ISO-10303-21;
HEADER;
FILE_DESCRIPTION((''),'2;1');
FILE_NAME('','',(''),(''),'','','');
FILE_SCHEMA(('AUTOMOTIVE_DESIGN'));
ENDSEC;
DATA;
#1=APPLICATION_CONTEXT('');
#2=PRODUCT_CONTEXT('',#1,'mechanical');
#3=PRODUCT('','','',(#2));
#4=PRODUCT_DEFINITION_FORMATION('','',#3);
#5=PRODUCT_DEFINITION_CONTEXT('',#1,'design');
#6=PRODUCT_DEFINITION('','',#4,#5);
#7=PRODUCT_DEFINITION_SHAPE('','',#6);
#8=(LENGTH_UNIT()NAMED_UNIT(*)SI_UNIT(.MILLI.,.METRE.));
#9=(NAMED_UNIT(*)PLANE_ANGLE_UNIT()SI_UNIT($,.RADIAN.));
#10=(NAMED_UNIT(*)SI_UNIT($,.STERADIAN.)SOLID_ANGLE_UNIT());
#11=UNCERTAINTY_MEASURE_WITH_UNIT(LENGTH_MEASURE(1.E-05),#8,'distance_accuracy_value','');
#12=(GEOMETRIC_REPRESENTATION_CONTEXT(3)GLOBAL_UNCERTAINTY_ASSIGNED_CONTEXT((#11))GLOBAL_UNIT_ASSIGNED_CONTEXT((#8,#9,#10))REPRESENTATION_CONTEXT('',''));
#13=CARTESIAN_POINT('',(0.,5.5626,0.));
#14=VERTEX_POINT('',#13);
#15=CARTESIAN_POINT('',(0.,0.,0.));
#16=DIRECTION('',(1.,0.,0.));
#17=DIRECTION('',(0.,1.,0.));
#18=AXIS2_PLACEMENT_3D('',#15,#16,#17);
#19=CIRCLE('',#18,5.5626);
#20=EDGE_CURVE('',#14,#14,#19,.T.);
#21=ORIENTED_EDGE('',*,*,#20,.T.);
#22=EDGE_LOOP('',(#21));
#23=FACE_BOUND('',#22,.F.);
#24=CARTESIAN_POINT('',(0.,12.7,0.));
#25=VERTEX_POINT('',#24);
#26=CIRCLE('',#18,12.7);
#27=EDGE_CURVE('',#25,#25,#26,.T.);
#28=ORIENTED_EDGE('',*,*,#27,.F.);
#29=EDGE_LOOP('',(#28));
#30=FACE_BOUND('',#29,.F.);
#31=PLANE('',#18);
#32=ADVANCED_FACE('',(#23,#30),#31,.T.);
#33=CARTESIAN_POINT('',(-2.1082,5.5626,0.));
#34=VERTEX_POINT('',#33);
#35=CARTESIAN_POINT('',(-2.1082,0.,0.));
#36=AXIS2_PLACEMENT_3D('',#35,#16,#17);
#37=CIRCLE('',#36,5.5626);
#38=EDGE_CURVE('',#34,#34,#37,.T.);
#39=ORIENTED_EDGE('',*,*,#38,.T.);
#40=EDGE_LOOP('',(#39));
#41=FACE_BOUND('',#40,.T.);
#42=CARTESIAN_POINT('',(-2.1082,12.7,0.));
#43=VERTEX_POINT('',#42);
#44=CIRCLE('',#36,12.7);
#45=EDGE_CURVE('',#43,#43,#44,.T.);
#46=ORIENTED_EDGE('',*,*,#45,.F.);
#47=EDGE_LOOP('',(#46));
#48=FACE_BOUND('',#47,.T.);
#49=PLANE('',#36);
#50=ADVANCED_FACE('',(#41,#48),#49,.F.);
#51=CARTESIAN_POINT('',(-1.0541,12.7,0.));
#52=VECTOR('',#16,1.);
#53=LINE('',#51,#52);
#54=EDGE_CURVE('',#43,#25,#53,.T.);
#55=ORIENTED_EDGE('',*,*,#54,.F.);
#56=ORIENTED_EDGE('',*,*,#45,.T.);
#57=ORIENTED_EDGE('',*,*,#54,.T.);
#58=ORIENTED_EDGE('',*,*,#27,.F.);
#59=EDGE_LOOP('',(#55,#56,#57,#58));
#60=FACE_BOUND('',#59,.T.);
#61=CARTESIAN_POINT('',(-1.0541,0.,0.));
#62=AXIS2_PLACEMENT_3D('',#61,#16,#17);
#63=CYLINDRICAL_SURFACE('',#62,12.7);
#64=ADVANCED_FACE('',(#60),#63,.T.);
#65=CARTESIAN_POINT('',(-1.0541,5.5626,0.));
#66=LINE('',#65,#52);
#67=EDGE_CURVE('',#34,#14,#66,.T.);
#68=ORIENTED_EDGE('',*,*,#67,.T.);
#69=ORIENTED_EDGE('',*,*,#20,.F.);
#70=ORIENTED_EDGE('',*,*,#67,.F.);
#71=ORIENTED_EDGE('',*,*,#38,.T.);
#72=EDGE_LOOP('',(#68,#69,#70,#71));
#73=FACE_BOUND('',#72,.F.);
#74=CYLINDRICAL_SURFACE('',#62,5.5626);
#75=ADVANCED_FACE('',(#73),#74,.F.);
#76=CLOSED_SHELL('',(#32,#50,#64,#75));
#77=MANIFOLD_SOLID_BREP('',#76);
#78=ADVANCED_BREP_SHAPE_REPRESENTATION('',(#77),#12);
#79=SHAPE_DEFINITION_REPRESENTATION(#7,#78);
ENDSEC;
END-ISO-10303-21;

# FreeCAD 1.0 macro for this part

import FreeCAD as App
import Part
import Sketcher

V = App.Vector
Q = App.Units.Quantity


def add_polygon(sketch, points):
    """Adds a closed chain of lines whose ends are joined by coincident constraints."""
    first, n = sketch.GeometryCount, len(points)
    for a, b in zip(points, points[1:] + points[:1]):
        sketch.addGeometry(Part.LineSegment(App.Vector(*a, 0), App.Vector(*b, 0)), False)
    for i in range(n):
        sketch.addConstraint(Sketcher.Constraint("Coincident", first + i, 2, first + (i + 1) % n, 1))

doc = App.newDocument("Part")
body = doc.addObject("PartDesign::Body", "Body")

# Sketch on XY plane
sketch1 = body.newObject("Sketcher::SketchObject", "Sketch")
sketch1.AttachmentSupport = (doc.getObject("XY_Plane"), [""])
sketch1.MapMode = "FlatFace"
add_polygon(sketch1, [(-2.1082, 12.7), (-2.1082, 5.5626), (0, 5.5626), (0, 12.7)])  # lines 0-3
sketch1.addConstraint([
    Sketcher.Constraint("Vertical", 0),
    Sketcher.Constraint("Horizontal", 1),
    Sketcher.Constraint("Vertical", 2),
    Sketcher.Constraint("Horizontal", 3),
    Sketcher.Constraint("PointOnObject", 1, 2, -2),
    Sketcher.Constraint("DistanceY", -1, 1, 2, 2, Q("0.5 in")),
    Sketcher.Constraint("DistanceX", 1, 1, 1, 2, Q("0.083 in")),
    Sketcher.Constraint("DistanceY", 0, 2, 0, 1, Q("0.281 in")),
])
revolution = body.newObject("PartDesign::Revolution", "Revolution")
revolution.Profile = sketch1
revolution.ReferenceAxis = (sketch1, ["H_Axis"])
revolution.Angle = 360

doc.recompute()
